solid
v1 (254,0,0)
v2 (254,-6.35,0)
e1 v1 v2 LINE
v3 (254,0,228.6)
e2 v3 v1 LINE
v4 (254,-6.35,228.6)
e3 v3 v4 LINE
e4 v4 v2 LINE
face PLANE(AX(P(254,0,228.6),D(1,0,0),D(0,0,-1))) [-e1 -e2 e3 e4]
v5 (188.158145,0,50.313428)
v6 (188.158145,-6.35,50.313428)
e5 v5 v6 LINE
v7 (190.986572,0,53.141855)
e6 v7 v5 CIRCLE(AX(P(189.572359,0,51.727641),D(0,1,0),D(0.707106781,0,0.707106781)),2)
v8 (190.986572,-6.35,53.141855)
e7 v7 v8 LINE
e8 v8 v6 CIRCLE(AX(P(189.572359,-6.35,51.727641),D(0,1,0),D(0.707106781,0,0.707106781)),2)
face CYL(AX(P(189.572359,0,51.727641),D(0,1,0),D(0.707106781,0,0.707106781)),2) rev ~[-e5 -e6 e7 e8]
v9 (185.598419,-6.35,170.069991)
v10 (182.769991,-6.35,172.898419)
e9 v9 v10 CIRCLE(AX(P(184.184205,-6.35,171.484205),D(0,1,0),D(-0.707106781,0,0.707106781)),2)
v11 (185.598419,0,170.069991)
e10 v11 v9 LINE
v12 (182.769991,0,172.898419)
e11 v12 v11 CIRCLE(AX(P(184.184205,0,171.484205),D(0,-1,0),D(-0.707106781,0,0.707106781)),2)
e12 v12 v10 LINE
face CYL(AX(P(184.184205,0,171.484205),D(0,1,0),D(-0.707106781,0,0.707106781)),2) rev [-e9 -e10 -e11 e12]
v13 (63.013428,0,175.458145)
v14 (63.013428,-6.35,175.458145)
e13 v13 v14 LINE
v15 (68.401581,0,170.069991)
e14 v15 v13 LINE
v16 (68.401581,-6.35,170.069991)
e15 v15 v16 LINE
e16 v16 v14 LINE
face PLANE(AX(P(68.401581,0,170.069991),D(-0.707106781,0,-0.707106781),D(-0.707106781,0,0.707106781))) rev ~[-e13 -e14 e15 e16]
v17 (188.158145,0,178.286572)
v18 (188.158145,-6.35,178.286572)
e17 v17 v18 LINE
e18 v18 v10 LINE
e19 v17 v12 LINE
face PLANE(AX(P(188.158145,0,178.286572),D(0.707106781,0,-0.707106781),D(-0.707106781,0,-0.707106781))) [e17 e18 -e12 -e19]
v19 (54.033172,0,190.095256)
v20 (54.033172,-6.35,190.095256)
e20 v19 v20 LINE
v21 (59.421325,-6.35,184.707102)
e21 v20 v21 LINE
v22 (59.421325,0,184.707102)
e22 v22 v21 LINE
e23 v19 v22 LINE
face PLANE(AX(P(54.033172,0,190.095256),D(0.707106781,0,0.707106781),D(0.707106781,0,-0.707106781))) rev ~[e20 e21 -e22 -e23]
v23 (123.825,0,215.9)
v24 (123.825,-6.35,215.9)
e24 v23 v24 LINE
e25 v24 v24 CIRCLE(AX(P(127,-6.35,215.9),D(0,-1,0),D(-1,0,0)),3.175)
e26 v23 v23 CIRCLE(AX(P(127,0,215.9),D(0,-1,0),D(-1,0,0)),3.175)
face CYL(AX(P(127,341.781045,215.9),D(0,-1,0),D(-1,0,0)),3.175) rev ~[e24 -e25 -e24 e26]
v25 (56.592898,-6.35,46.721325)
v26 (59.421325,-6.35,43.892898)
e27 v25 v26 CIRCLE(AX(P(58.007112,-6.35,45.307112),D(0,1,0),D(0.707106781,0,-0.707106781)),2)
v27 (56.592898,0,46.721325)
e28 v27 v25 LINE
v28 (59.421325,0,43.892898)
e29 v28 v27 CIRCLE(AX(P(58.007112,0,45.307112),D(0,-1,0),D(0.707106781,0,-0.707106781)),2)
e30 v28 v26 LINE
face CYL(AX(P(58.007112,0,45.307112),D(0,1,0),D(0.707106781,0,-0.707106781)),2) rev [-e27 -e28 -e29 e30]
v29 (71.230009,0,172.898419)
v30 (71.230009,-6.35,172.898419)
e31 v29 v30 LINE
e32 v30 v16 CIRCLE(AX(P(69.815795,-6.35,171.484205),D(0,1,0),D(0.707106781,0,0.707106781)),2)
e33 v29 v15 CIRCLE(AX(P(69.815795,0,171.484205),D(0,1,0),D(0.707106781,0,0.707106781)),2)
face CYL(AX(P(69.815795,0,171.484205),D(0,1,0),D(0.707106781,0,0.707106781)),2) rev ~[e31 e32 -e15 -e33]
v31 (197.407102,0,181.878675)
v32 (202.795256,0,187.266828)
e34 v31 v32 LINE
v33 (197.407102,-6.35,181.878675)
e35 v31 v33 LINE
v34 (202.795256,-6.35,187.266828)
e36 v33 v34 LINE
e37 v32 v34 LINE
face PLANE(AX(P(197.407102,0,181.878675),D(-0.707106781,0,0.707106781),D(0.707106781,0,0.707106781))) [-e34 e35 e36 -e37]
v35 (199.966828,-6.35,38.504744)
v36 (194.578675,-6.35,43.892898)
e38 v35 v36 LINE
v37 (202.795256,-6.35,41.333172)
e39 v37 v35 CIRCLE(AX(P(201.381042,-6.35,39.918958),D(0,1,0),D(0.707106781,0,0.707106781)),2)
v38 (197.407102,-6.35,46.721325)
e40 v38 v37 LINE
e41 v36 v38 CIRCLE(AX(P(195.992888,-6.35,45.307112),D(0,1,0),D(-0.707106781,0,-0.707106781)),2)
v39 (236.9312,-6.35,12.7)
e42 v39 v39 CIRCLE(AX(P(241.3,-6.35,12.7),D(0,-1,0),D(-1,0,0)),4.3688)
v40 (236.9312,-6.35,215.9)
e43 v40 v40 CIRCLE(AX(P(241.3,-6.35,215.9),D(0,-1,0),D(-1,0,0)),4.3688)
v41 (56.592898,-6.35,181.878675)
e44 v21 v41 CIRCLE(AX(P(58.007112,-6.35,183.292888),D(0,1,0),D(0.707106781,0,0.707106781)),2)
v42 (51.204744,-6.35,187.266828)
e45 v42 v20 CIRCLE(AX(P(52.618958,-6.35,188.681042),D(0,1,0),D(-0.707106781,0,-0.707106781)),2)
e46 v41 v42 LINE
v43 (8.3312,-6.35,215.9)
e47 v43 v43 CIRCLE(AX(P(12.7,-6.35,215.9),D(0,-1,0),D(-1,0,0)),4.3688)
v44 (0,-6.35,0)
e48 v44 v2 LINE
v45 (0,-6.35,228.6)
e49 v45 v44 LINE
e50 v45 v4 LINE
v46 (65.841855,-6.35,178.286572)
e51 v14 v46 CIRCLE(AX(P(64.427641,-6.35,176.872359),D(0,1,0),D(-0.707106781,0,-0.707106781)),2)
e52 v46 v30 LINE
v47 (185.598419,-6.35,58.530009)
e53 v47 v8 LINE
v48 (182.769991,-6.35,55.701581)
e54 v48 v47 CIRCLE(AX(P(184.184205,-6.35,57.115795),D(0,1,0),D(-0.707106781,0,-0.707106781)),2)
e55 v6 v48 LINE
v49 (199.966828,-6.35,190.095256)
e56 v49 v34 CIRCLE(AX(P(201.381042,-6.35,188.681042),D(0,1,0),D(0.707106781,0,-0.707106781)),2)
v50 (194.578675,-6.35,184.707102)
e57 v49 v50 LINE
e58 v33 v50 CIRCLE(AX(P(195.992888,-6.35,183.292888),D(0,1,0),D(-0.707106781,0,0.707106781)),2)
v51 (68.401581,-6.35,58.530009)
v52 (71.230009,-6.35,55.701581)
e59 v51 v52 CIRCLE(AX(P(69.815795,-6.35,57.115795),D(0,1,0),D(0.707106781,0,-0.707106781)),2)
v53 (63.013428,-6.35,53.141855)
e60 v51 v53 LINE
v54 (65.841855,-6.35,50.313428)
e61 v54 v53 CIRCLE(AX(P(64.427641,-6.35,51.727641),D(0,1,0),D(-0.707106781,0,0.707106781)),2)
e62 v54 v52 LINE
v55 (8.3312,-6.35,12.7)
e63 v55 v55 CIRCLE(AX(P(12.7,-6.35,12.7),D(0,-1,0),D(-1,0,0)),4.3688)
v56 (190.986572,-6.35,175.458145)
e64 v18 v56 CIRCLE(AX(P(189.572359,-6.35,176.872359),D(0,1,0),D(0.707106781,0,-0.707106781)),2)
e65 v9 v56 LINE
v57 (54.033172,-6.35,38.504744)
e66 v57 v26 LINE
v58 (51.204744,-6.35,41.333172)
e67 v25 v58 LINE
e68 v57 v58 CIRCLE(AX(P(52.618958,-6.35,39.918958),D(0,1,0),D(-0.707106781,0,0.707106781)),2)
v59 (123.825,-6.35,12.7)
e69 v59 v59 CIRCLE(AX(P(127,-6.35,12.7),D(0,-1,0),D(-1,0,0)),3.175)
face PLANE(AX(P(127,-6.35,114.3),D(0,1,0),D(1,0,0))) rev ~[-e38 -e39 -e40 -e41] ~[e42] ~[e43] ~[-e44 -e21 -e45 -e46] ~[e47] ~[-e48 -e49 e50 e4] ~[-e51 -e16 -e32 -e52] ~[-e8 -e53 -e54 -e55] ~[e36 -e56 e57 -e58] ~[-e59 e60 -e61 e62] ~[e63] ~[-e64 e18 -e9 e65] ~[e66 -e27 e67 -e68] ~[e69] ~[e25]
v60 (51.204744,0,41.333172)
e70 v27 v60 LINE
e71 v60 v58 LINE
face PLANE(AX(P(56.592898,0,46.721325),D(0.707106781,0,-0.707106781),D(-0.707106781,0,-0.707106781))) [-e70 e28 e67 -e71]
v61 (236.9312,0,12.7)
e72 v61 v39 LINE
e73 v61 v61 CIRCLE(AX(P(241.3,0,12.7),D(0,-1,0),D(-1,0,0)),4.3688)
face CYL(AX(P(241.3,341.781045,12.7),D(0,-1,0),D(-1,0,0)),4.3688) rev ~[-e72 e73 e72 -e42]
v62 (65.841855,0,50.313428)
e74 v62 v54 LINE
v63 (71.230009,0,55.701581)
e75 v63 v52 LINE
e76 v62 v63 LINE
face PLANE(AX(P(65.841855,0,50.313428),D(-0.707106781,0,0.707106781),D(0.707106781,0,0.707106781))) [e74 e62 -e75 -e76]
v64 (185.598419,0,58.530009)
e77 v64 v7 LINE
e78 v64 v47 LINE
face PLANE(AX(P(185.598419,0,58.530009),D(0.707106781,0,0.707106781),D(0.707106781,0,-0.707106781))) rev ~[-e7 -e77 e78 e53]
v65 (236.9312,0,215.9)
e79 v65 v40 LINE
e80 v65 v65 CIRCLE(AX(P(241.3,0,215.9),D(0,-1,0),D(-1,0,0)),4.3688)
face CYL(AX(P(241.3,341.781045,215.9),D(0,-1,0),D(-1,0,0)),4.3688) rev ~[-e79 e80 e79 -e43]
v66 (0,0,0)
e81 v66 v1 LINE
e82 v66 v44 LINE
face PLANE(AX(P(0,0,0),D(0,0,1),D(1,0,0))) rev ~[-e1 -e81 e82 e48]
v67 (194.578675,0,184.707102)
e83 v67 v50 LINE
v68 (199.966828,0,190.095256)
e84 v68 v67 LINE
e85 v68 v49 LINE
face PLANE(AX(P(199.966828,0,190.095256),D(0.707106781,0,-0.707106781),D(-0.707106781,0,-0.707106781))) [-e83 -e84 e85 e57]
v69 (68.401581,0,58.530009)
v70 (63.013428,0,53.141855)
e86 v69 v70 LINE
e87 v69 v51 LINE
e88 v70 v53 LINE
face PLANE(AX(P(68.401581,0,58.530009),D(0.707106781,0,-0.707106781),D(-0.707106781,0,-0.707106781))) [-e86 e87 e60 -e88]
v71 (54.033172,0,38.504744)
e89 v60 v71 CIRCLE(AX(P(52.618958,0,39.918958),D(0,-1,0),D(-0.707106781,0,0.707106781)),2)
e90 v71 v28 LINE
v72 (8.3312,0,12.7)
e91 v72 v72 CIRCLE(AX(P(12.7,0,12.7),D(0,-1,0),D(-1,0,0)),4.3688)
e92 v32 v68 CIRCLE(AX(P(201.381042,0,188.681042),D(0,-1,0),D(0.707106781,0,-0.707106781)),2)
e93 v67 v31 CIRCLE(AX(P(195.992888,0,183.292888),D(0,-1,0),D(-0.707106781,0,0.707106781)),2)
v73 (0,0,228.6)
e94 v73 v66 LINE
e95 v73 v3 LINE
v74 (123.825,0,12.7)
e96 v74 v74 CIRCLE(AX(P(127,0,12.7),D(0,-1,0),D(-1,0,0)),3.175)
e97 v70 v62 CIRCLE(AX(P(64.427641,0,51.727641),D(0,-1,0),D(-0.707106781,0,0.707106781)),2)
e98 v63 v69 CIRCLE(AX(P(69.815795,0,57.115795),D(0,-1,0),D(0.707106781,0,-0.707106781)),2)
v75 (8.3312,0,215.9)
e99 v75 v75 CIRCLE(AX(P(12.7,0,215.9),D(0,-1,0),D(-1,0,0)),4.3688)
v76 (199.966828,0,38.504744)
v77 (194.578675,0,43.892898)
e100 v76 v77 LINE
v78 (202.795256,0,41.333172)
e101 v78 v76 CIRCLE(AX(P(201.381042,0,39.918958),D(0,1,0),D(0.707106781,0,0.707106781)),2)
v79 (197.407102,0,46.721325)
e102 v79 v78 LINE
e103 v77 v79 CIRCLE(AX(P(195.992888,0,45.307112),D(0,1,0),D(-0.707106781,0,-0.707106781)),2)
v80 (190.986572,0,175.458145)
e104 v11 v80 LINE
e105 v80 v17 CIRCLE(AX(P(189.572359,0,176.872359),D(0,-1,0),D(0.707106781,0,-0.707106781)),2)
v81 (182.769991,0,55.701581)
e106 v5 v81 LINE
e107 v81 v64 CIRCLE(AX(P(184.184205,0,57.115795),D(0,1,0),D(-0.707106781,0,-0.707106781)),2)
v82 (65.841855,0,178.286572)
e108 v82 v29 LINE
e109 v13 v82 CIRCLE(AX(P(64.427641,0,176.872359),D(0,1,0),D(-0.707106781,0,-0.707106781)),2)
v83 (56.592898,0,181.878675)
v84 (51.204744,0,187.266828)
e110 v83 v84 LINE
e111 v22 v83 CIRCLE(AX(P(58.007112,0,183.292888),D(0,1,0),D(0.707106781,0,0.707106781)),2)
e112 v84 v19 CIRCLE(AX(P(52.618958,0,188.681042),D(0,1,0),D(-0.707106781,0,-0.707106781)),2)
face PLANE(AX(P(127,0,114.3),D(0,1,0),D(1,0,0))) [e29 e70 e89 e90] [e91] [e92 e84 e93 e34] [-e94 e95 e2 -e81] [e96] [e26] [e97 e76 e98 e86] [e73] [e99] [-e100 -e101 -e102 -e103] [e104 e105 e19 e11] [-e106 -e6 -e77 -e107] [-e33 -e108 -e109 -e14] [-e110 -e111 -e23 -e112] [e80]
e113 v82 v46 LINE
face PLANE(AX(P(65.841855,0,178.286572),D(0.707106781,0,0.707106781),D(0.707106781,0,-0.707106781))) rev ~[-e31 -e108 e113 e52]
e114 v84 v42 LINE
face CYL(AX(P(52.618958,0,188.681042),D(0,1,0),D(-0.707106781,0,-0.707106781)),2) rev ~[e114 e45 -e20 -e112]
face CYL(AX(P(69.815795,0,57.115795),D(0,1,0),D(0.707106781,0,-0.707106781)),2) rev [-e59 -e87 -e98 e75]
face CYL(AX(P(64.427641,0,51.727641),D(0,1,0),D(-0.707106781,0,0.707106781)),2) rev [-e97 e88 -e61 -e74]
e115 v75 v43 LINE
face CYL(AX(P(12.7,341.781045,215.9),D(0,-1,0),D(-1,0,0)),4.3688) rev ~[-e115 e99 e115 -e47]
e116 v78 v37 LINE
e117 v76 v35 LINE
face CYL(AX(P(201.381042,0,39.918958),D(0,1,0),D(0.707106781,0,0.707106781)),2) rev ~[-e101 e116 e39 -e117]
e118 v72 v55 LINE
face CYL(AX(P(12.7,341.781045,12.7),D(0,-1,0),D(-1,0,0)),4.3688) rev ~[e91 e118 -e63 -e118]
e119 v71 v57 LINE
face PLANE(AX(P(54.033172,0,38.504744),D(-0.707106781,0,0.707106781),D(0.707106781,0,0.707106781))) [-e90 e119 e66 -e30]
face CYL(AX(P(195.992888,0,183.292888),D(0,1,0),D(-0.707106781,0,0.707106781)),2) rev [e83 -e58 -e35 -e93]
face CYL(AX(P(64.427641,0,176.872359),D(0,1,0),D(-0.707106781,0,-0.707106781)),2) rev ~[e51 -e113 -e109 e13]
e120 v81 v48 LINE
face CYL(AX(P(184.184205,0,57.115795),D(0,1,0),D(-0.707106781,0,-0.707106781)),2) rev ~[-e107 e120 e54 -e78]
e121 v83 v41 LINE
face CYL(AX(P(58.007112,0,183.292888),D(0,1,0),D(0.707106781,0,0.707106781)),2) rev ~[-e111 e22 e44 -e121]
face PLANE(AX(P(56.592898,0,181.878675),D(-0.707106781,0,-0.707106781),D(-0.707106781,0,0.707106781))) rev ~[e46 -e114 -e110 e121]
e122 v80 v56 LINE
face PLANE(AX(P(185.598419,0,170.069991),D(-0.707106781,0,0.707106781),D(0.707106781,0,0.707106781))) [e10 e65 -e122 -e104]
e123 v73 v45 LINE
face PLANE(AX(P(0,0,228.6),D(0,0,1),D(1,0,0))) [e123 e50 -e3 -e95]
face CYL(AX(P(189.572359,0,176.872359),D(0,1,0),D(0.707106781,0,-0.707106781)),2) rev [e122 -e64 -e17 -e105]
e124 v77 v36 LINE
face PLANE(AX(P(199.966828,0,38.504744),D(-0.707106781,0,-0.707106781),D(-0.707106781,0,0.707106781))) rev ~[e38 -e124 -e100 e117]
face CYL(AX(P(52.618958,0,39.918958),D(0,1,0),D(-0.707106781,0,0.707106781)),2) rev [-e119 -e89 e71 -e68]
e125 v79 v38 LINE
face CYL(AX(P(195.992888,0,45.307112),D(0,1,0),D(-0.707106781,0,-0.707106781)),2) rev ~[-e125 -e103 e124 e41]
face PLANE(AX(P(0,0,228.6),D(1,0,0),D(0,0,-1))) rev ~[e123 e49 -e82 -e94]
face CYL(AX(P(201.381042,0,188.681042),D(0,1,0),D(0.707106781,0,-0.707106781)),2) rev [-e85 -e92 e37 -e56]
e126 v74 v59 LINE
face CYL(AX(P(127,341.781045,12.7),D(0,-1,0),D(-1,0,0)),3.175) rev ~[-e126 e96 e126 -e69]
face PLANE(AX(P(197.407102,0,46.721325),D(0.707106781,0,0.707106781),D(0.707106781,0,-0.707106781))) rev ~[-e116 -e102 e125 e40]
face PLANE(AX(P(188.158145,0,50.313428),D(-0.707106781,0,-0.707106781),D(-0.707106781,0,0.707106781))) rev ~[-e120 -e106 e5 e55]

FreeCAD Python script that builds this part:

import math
import FreeCAD as App
import Part
import Sketcher

V = App.Vector
Q = App.Units.Quantity

doc = App.newDocument("Part")
body = doc.addObject("PartDesign::Body", "Body")

# Sketch on XZ plane
sketch1 = doc.addObject("Sketcher::SketchObject", "Sketch")
body.addObject(sketch1)
sketch1.AttachmentSupport = (doc.XZ_Plane, [""])
sketch1.MapMode = "FlatFace"
sketch1.addGeometry([
    Part.LineSegment(V(0, 0, 0), V(0, 229, 0)),
    Part.LineSegment(V(0, 229, 0), V(254, 229, 0)),
    Part.LineSegment(V(254, 229, 0), V(254, 0, 0)),
    Part.LineSegment(V(254, 0, 0), V(0, 0, 0)),
], False)
sketch1.addConstraint([
    Sketcher.Constraint("Coincident", 0, 2, 1, 1),
    Sketcher.Constraint("Coincident", 1, 2, 2, 1),
    Sketcher.Constraint("Coincident", 2, 2, 3, 1),
    Sketcher.Constraint("Coincident", 3, 2, 0, 1),
    Sketcher.Constraint("Vertical", 0),
    Sketcher.Constraint("Horizontal", 1),
    Sketcher.Constraint("Vertical", 2),
    Sketcher.Constraint("Horizontal", 3),
    Sketcher.Constraint("Coincident", 3, 2, -1, 1),
    Sketcher.Constraint("DistanceX", 1, 1, 1, 2, Q("10 in")),
    Sketcher.Constraint("DistanceY", 0, 1, 0, 2, Q("9 in")),
])
pad1 = doc.addObject("PartDesign::Pad", "Pad")
body.addObject(pad1)
pad1.Profile = sketch1
pad1.Length = Q("0.25 in")

# Sketch on XZ plane
sketch2 = doc.addObject("Sketcher::SketchObject", "Sketch001")
body.addObject(sketch2)
sketch2.AttachmentSupport = (doc.XZ_Plane, [""])
sketch2.MapMode = "FlatFace"
sketch2.addGeometry([
    Part.ArcOfCircle(Part.Circle(V(58, 45.3, 0), V(0, 0, 1), 2), math.radians(-45), math.radians(135)),  # 0
    Part.LineSegment(V(59.4, 43.9, 0), V(54, 38.5, 0)),  # 1
    Part.ArcOfCircle(Part.Circle(V(52.6, 39.9, 0), V(0, 0, 1), 2), math.radians(135), math.radians(315)),  # 2
    Part.LineSegment(V(51.2, 41.3, 0), V(56.6, 46.7, 0)),  # 3
    Part.LineSegment(V(200, 38.5, 0), V(194.6, 43.9, 0)),  # 4
    Part.ArcOfCircle(Part.Circle(V(196, 45.3, 0), V(0, 0, 1), 2), math.radians(45), math.radians(225)),  # 5
    Part.LineSegment(V(197.4, 46.7, 0), V(202.8, 41.3, 0)),  # 6
    Part.ArcOfCircle(Part.Circle(V(201.4, 39.9, 0), V(0, 0, 1), 2), math.radians(-135), math.radians(45)),  # 7
    Part.LineSegment(V(185.6, 58.5, 0), V(191, 53.1, 0)),  # 8
    Part.ArcOfCircle(Part.Circle(V(189.6, 51.7, 0), V(0, 0, 1), 2), math.radians(-135), math.radians(45)),  # 9
    Part.LineSegment(V(188.2, 50.3, 0), V(182.8, 55.7, 0)),  # 10
    Part.ArcOfCircle(Part.Circle(V(184.2, 57.1, 0), V(0, 0, 1), 2), math.radians(45), math.radians(225)),  # 11
    Part.ArcOfCircle(Part.Circle(V(189.6, 176.9, 0), V(0, 0, 1), 2), math.radians(-45), math.radians(135)),  # 12
    Part.LineSegment(V(191, 175.5, 0), V(185.6, 170.1, 0)),  # 13
    Part.ArcOfCircle(Part.Circle(V(184.2, 171.5, 0), V(0, 0, 1), 2), math.radians(135), math.radians(315)),  # 14
    Part.LineSegment(V(182.8, 172.9, 0), V(188.2, 178.3, 0)),  # 15
    Part.ArcOfCircle(Part.Circle(V(196, 183.3, 0), V(0, 0, 1), 2), math.radians(135), math.radians(315)),  # 16
    Part.LineSegment(V(194.6, 184.7, 0), V(200, 190.1, 0)),  # 17
    Part.ArcOfCircle(Part.Circle(V(201.4, 188.7, 0), V(0, 0, 1), 2), math.radians(-45), math.radians(135)),  # 18
    Part.LineSegment(V(202.8, 187.3, 0), V(197.4, 181.9, 0)),  # 19
    Part.LineSegment(V(54, 190.1, 0), V(59.4, 184.7, 0)),  # 20
    Part.ArcOfCircle(Part.Circle(V(58, 183.3, 0), V(0, 0, 1), 2), math.radians(-135), math.radians(45)),  # 21
    Part.LineSegment(V(56.6, 181.9, 0), V(51.2, 187.3, 0)),  # 22
    Part.ArcOfCircle(Part.Circle(V(52.6, 188.7, 0), V(0, 0, 1), 2), math.radians(45), math.radians(225)),  # 23
    Part.LineSegment(V(68.4, 170.1, 0), V(63, 175.5, 0)),  # 24
    Part.ArcOfCircle(Part.Circle(V(64.4, 176.9, 0), V(0, 0, 1), 2), math.radians(45), math.radians(225)),  # 25
    Part.LineSegment(V(65.8, 178.3, 0), V(71.2, 172.9, 0)),  # 26
    Part.ArcOfCircle(Part.Circle(V(69.8, 171.5, 0), V(0, 0, 1), 2), math.radians(-135), math.radians(45)),  # 27
    Part.LineSegment(V(63, 53.1, 0), V(68.4, 58.5, 0)),  # 28
    Part.ArcOfCircle(Part.Circle(V(69.8, 57.1, 0), V(0, 0, 1), 2), math.radians(-45), math.radians(135)),  # 29
    Part.LineSegment(V(71.2, 55.7, 0), V(65.8, 50.3, 0)),  # 30
    Part.ArcOfCircle(Part.Circle(V(64.4, 51.7, 0), V(0, 0, 1), 2), math.radians(135), math.radians(315)),  # 31
], False)
sketch2.addConstraint([
    Sketcher.Constraint("Tangent", 0, 1, 1, 1),
    Sketcher.Constraint("Tangent", 1, 2, 2, 2),
    Sketcher.Constraint("Tangent", 2, 1, 3, 1),
    Sketcher.Constraint("Tangent", 3, 2, 0, 2),
    Sketcher.Constraint("Tangent", 4, 2, 5, 2),
    Sketcher.Constraint("Tangent", 5, 1, 6, 1),
    Sketcher.Constraint("Tangent", 6, 2, 7, 2),
    Sketcher.Constraint("Tangent", 7, 1, 4, 1),
    Sketcher.Constraint("Tangent", 8, 2, 9, 2),
    Sketcher.Constraint("Tangent", 9, 1, 10, 1),
    Sketcher.Constraint("Tangent", 10, 2, 11, 2),
    Sketcher.Constraint("Tangent", 11, 1, 8, 1),
    Sketcher.Constraint("Tangent", 12, 1, 13, 1),
    Sketcher.Constraint("Tangent", 13, 2, 14, 2),
    Sketcher.Constraint("Tangent", 14, 1, 15, 1),
    Sketcher.Constraint("Tangent", 15, 2, 12, 2),
    Sketcher.Constraint("Tangent", 16, 1, 17, 1),
    Sketcher.Constraint("Tangent", 17, 2, 18, 2),
    Sketcher.Constraint("Tangent", 18, 1, 19, 1),
    Sketcher.Constraint("Tangent", 19, 2, 16, 2),
    Sketcher.Constraint("Tangent", 20, 2, 21, 2),
    Sketcher.Constraint("Tangent", 21, 1, 22, 1),
    Sketcher.Constraint("Tangent", 22, 2, 23, 2),
    Sketcher.Constraint("Tangent", 23, 1, 20, 1),
    Sketcher.Constraint("Tangent", 24, 2, 25, 2),
    Sketcher.Constraint("Tangent", 25, 1, 26, 1),
    Sketcher.Constraint("Tangent", 26, 2, 27, 2),
    Sketcher.Constraint("Tangent", 27, 1, 24, 1),
    Sketcher.Constraint("Tangent", 28, 2, 29, 2),
    Sketcher.Constraint("Tangent", 29, 1, 30, 1),
    Sketcher.Constraint("Tangent", 30, 2, 31, 2),
    Sketcher.Constraint("Tangent", 31, 1, 28, 1),
    Sketcher.Constraint("Equal", 0, 2),
    Sketcher.Constraint("Equal", 2, 5),
    Sketcher.Constraint("Equal", 5, 7),
    Sketcher.Constraint("Equal", 7, 9),
    Sketcher.Constraint("Equal", 9, 11),
    Sketcher.Constraint("Equal", 11, 12),
    Sketcher.Constraint("Equal", 12, 14),
    Sketcher.Constraint("Equal", 14, 16),
    Sketcher.Constraint("Equal", 16, 18),
    Sketcher.Constraint("Equal", 18, 21),
    Sketcher.Constraint("Equal", 21, 23),
    Sketcher.Constraint("Equal", 23, 25),
    Sketcher.Constraint("Equal", 25, 27),
    Sketcher.Constraint("Equal", 27, 29),
    Sketcher.Constraint("Equal", 29, 31),
    Sketcher.Constraint("Perpendicular", 3, 4),
    Sketcher.Constraint("Parallel", 6, 8),
    Sketcher.Constraint("Perpendicular", 10, 13),
    Sketcher.Constraint("Parallel", 15, 17),
    Sketcher.Constraint("Perpendicular", 19, 20),
    Sketcher.Constraint("Parallel", 22, 24),
    Sketcher.Constraint("Perpendicular", 26, 28),
    Sketcher.Constraint("Horizontal", 0, 3, 5, 3),
    Sketcher.Constraint("Horizontal", 2, 3, 7, 3),
    Sketcher.Constraint("Horizontal", 16, 3, 21, 3),
    Sketcher.Constraint("Horizontal", 18, 3, 23, 3),
    Sketcher.Constraint("Horizontal", 12, 3, 25, 3),
    Sketcher.Constraint("Horizontal", 14, 3, 27, 3),
    Sketcher.Constraint("Horizontal", 11, 3, 29, 3),
    Sketcher.Constraint("Horizontal", 9, 3, 31, 3),
    Sketcher.Constraint("Horizontal", 0, 1, 4, 2),
    Sketcher.Constraint("Vertical", 9, 3, 12, 3),
    Sketcher.Constraint("Vertical", 11, 3, 14, 3),
    Sketcher.Constraint("Vertical", 5, 3, 16, 3),
    Sketcher.Constraint("Vertical", 7, 3, 18, 3),
    Sketcher.Constraint("Vertical", 0, 3, 21, 3),
    Sketcher.Constraint("Vertical", 27, 3, 29, 3),
    Sketcher.Constraint("Equal", 6, 8),
    Sketcher.Constraint("Distance", 1, Q("0.3 in")),
    Sketcher.Constraint("Radius", 0, Q("2 mm")),
    Sketcher.Constraint("DistanceY", -1, 1, 0, 1, Q("43.892898 mm")),
    Sketcher.Constraint("DistanceX", -1, 1, 3, 2, Q("56.592898 mm")),
    Sketcher.Constraint("DistanceX", -1, 1, 5, 1, Q("197.407102 mm")),
    Sketcher.Constraint("DistanceY", -1, 1, 16, 1, Q("184.707102 mm")),
    Sketcher.Constraint("DistanceX", 2, 3, 9, 3, Q("136.9534 mm")),
    Sketcher.Constraint("DistanceY", 7, 3, 12, 3, Q("136.9534 mm")),
    Sketcher.Constraint("DistanceY", 9, 3, 18, 3, Q("136.9534 mm")),
    Sketcher.Constraint("DistanceX", -1, 1, 25, 3, Q("64.427641 mm")),
])
pocket1 = doc.addObject("PartDesign::Pocket", "Pocket")
body.addObject(pocket1)
pocket1.Profile = sketch2
pocket1.Type = "ThroughAll"
pocket1.Reversed = True

# Sketch on XZ plane
sketch3 = doc.addObject("Sketcher::SketchObject", "Sketch002")
body.addObject(sketch3)
sketch3.AttachmentSupport = (doc.XZ_Plane, [""])
sketch3.MapMode = "FlatFace"
sketch3.addGeometry([
    Part.Circle(V(12.7, 215.9, 0), V(0, 0, 1), 4.4),
    Part.Circle(V(241.3, 12.7, 0), V(0, 0, 1), 4.4),
    Part.Circle(V(12.7, 12.7, 0), V(0, 0, 1), 4.4),
    Part.Circle(V(241.3, 215.9, 0), V(0, 0, 1), 4.4),
], False)
sketch3.addConstraint([
    Sketcher.Constraint("Equal", 0, 1),
    Sketcher.Constraint("Equal", 1, 2),
    Sketcher.Constraint("Equal", 2, 3),
    Sketcher.Constraint("Horizontal", 1, 3, 2, 3),
    Sketcher.Constraint("Horizontal", 0, 3, 3, 3),
    Sketcher.Constraint("Vertical", 0, 3, 2, 3),
    Sketcher.Constraint("Vertical", 1, 3, 3, 3),
    Sketcher.Constraint("Diameter", 0, Q("0.344 in")),
    Sketcher.Constraint("DistanceX", 0, 3, 1, 3, Q("9 in")),
    Sketcher.Constraint("DistanceY", 1, 3, 0, 3, Q("8 in")),
    Sketcher.Constraint("DistanceX", -1, 1, 0, 3, Q("0.5 in")),
    Sketcher.Constraint("DistanceY", -1, 1, 0, 3, Q("8.5 in")),
])
doc.recompute()
hole = doc.addObject("PartDesign::Hole", "Hole")
body.addObject(hole)
hole.Profile = sketch3
hole.ThreadType = "None"
hole.Diameter = Q("0.344 in")
hole.DepthType = "ThroughAll"
hole.Reversed = True

# Sketch on XZ plane
sketch4 = doc.addObject("Sketcher::SketchObject", "Sketch003")
body.addObject(sketch4)
sketch4.AttachmentSupport = (doc.XZ_Plane, [""])
sketch4.MapMode = "FlatFace"
sketch4.addGeometry([
    Part.Circle(V(127, 215.9, 0), V(0, 0, 1), 3.2),
    Part.Circle(V(127, 12.7, 0), V(0, 0, 1), 3.2),
], False)
sketch4.addConstraint([
    Sketcher.Constraint("Equal", 0, 1),
    Sketcher.Constraint("Vertical", 0, 3, 1, 3),
    Sketcher.Constraint("Diameter", 0, Q("0.25 in")),
    Sketcher.Constraint("DistanceX", -1, 1, 0, 3, Q("5 in")),
    Sketcher.Constraint("DistanceY", 1, 3, 0, 3, Q("8 in")),
    Sketcher.Constraint("DistanceY", -1, 1, 0, 3, Q("8.5 in")),
])
doc.recompute()
hole2 = doc.addObject("PartDesign::Hole", "Hole001")
body.addObject(hole2)
hole2.Profile = sketch4
hole2.ThreadType = "None"
hole2.Diameter = Q("0.25 in")
hole2.DepthType = "ThroughAll"
hole2.Reversed = True

doc.recompute()
